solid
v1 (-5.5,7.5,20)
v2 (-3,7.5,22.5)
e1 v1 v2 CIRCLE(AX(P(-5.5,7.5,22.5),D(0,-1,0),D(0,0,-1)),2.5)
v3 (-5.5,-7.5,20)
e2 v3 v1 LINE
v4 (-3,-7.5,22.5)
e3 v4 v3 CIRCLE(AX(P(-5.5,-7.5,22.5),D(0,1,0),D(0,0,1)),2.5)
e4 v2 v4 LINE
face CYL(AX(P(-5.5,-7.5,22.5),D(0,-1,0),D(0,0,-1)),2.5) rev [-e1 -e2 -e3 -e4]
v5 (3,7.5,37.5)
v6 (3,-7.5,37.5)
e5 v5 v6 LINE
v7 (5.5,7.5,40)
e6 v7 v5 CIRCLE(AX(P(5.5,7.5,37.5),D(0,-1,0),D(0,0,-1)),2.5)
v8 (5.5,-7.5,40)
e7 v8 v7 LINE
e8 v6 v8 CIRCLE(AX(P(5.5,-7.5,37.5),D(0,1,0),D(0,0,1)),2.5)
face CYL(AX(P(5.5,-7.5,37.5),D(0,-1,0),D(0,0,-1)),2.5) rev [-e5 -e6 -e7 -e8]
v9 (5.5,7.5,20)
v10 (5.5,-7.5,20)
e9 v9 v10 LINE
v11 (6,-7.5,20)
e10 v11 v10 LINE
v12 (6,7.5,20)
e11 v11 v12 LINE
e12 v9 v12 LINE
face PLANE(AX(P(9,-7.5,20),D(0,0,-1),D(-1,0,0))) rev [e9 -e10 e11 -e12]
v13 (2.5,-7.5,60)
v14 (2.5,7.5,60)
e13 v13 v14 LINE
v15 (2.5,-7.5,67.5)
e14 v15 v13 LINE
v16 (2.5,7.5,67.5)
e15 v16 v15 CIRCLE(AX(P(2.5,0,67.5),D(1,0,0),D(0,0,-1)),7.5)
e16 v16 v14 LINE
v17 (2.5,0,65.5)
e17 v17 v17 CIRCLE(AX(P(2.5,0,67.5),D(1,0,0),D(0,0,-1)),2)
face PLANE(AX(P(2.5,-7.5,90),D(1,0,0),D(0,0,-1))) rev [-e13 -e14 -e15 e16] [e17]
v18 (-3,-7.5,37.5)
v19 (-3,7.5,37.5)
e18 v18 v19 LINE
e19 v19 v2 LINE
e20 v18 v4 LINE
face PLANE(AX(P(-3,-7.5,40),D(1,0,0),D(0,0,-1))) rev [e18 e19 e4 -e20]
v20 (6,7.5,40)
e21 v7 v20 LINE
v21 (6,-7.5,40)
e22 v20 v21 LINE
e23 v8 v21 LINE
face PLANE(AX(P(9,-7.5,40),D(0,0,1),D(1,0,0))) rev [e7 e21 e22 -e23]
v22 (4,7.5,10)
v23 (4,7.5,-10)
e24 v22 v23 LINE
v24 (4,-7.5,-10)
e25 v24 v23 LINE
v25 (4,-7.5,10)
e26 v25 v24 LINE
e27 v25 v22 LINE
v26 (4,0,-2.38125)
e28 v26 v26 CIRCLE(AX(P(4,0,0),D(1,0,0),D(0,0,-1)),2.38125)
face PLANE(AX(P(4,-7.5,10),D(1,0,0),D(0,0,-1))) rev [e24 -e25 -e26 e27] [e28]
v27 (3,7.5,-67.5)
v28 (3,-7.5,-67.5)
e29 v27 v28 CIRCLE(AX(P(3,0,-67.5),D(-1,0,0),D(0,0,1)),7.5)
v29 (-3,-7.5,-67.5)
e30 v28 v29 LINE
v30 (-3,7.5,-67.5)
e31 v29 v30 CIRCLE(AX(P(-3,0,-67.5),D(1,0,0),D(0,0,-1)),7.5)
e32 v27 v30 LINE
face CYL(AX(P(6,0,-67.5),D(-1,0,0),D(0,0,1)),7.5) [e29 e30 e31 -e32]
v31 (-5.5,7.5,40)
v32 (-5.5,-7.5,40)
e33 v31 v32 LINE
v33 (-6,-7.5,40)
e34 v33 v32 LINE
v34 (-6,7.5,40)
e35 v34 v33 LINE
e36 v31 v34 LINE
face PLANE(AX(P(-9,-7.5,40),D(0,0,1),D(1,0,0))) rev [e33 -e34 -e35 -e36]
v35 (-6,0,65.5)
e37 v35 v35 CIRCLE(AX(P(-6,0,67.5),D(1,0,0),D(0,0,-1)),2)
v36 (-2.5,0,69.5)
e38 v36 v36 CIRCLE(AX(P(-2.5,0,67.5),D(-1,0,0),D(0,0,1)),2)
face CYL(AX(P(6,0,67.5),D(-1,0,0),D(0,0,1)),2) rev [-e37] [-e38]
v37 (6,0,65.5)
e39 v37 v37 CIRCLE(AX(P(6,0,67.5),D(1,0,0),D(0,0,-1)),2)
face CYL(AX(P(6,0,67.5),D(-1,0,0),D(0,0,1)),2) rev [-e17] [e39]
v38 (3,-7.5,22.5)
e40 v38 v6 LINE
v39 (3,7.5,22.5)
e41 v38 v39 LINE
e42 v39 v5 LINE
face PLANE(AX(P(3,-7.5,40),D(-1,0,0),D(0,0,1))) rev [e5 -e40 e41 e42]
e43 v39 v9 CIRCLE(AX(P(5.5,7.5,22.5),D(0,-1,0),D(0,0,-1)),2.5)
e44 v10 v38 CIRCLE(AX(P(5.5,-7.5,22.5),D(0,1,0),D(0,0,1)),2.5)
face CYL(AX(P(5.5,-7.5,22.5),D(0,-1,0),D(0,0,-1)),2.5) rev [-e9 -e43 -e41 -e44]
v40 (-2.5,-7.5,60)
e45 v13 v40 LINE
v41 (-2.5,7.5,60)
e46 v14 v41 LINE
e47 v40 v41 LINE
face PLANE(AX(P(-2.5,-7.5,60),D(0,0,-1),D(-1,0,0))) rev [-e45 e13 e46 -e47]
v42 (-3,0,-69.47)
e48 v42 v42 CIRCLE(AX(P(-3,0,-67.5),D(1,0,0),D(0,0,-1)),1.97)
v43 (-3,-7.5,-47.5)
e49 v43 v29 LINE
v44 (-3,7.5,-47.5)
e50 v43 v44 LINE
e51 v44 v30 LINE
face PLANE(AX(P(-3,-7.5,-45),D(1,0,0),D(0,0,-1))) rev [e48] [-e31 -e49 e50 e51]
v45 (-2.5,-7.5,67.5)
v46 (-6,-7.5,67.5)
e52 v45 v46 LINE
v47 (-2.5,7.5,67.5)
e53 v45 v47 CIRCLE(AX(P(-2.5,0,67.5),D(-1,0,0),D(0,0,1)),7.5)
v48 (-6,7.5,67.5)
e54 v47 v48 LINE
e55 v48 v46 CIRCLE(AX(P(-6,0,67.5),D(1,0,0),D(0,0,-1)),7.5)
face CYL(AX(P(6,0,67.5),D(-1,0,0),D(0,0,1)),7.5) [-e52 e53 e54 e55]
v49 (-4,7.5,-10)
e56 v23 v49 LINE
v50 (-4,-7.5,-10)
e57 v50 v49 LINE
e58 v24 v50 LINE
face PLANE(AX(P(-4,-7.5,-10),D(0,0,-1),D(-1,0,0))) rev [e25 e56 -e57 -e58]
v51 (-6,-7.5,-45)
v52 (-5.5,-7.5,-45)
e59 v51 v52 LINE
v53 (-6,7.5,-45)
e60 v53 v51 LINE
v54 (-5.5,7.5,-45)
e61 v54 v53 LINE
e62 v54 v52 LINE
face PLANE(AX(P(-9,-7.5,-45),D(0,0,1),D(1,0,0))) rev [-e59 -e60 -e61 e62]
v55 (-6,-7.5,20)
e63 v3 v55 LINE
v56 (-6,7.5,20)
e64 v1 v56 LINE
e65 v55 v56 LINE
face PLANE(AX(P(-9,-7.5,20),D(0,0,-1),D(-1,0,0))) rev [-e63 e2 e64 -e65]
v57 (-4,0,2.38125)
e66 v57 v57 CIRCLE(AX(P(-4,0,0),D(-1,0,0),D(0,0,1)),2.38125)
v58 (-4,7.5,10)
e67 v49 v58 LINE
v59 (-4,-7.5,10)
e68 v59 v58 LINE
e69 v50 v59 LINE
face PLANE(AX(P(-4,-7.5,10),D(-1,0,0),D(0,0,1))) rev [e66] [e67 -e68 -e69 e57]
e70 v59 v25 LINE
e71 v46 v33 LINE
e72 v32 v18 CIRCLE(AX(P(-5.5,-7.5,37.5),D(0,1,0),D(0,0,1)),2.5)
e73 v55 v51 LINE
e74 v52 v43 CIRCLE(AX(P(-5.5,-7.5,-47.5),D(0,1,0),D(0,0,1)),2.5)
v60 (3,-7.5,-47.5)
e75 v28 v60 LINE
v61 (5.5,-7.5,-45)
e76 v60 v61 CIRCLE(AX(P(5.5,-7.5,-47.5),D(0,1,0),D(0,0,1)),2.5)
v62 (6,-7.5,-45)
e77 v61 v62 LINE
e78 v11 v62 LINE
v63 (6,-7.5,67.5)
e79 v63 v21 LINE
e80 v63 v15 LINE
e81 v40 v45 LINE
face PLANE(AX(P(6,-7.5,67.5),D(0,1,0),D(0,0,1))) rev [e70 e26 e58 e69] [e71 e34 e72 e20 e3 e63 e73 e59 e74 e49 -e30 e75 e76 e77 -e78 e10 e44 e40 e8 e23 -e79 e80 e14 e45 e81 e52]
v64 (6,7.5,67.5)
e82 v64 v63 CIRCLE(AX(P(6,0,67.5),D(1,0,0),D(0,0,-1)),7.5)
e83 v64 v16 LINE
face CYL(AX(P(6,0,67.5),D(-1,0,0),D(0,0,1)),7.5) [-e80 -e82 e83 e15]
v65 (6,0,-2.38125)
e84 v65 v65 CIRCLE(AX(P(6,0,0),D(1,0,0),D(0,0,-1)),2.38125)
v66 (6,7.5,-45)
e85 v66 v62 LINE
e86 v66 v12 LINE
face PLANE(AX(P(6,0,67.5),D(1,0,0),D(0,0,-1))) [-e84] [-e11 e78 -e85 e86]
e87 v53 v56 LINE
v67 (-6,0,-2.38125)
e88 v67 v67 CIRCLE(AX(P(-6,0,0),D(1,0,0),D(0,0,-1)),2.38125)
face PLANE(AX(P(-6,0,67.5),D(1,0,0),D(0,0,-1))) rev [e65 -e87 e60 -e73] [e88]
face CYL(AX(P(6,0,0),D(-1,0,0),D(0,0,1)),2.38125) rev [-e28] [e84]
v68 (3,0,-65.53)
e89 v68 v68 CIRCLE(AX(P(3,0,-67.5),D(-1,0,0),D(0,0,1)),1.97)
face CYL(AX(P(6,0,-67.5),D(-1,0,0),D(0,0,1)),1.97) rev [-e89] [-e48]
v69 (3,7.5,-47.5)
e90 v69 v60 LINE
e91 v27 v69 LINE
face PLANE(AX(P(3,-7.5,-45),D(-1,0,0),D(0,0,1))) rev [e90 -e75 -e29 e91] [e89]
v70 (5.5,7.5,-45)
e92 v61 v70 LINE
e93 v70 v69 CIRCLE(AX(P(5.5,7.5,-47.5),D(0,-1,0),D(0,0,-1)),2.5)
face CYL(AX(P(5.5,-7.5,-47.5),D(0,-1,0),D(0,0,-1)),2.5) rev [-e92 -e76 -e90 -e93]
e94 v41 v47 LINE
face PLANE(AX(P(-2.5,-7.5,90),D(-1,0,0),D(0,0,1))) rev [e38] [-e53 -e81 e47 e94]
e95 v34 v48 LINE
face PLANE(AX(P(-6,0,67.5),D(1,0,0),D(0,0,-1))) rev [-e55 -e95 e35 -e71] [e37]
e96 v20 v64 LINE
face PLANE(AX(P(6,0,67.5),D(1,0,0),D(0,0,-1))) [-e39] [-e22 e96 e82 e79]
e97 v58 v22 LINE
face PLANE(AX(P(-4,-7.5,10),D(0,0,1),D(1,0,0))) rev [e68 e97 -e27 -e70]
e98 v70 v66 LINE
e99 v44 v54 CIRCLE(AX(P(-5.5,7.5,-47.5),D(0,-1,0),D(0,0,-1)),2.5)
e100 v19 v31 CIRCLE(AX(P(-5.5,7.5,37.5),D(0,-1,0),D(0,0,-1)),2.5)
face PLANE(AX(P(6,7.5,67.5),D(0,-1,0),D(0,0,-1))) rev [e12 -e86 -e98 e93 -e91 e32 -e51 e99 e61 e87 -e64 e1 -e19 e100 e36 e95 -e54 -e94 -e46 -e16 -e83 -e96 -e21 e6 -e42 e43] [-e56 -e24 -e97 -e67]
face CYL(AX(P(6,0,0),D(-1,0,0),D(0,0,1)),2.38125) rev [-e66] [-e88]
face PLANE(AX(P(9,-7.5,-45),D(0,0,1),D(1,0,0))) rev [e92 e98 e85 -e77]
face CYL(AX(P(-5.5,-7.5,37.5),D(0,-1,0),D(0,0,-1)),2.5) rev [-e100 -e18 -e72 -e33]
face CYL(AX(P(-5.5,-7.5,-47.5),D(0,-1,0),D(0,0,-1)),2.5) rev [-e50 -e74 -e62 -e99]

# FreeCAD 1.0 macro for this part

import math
import FreeCAD as App
import Part
import Sketcher
from FreeCAD import Vector
Q = App.Units.Quantity


def edges_at(feature, points):
    """Names of the edges that pass closest to the given points."""
    edges = feature.Shape.Edges
    near = lambda p: min(range(len(edges)), key=lambda i: edges[i].distToShape(Part.Vertex(*p))[0])
    return sorted({f"Edge{near(p) + 1}" for p in points})

doc = App.newDocument("Part")
body = doc.addObject("PartDesign::Body", "Body")

sketch1 = body.newObject("Sketcher::SketchObject", "Sketch")
sketch1.AttachmentSupport = (doc.getObject("YZ_Plane"), [""])
sketch1.MapMode = "FlatFace"
sketch1.addGeometry([
    Part.LineSegment(Vector(7.5, -67.5, 0), Vector(7.5, 67.5, 0)),
    Part.ArcOfCircle(Part.Circle(Vector(0, 67.5, 0), Vector(0, 0, 1), 7.5), math.radians(0), math.radians(180)),
    Part.LineSegment(Vector(-7.5, 67.5, 0), Vector(-7.5, -67.5, 0)),
    Part.ArcOfCircle(Part.Circle(Vector(0, -67.5, 0), Vector(0, 0, 1), 7.5), math.radians(180), math.radians(360)),
    Part.Circle(Vector(0, -67.5, 0), Vector(0, 0, 1), 1.97),
    Part.Circle(Vector(0, 0, 0), Vector(0, 0, 1), 2.38125),
    Part.Circle(Vector(0, 67.5, 0), Vector(0, 0, 1), 2),
], False)
sketch1.addConstraint([
    Sketcher.Constraint("Tangent", 0, 2, 1, 1),
    Sketcher.Constraint("Tangent", 1, 2, 2, 1),
    Sketcher.Constraint("Tangent", 2, 2, 3, 1),
    Sketcher.Constraint("Tangent", 3, 2, 0, 1),
    Sketcher.Constraint("Vertical", 0),
    Sketcher.Constraint("Vertical", 2),
    Sketcher.Constraint("Coincident", 5, 3, -1, 1),
    Sketcher.Constraint("Coincident", 4, 3, 3, 3),
    Sketcher.Constraint("Coincident", 6, 3, 1, 3),
    Sketcher.Constraint("Symmetric", 1, 3, 3, 3, -1, 1),
    Sketcher.Constraint("Diameter", 6, Q("4 mm")),
    Sketcher.Constraint("Radius", 1, Q("7.5 mm")),
    Sketcher.Constraint("Diameter", 4, Q("3.94 mm")),
    Sketcher.Constraint("DistanceY", 0, 1, 0, 2, Q("135 mm")),
    Sketcher.Constraint("Diameter", 5, Q("4.7625 mm")),
])
pad1 = body.newObject("PartDesign::Pad", "Pad")
pad1.Profile = sketch1
pad1.Length = 12
pad1.Midplane = True

sketch2 = body.newObject("Sketcher::SketchObject", "Sketch001")
sketch2.AttachmentSupport = (doc.getObject("XZ_Plane"), [""])
sketch2.MapMode = "FlatFace"
sketch2.addGeometry([
    Part.LineSegment(Vector(-2.5, 60, 0), Vector(-2.5, 90, 0)),
    Part.LineSegment(Vector(-2.5, 90, 0), Vector(2.5, 90, 0)),
    Part.LineSegment(Vector(2.5, 90, 0), Vector(2.5, 60, 0)),
    Part.LineSegment(Vector(2.5, 60, 0), Vector(-2.5, 60, 0)),
    Part.LineSegment(Vector(-9, 20, 0), Vector(-9, 40, 0)),
    Part.LineSegment(Vector(-9, 40, 0), Vector(-3, 40, 0)),
    Part.LineSegment(Vector(-3, 40, 0), Vector(-3, 20, 0)),
    Part.LineSegment(Vector(-3, 20, 0), Vector(-9, 20, 0)),
    Part.LineSegment(Vector(3, 20, 0), Vector(3, 40, 0)),
    Part.LineSegment(Vector(3, 40, 0), Vector(9, 40, 0)),
    Part.LineSegment(Vector(9, 40, 0), Vector(9, 20, 0)),
    Part.LineSegment(Vector(9, 20, 0), Vector(3, 20, 0)),
    Part.LineSegment(Vector(3, -75, 0), Vector(3, -45, 0)),
    Part.LineSegment(Vector(3, -45, 0), Vector(9, -45, 0)),
    Part.LineSegment(Vector(9, -45, 0), Vector(9, -75, 0)),
    Part.LineSegment(Vector(9, -75, 0), Vector(3, -75, 0)),
    Part.LineSegment(Vector(-9, -75, 0), Vector(-9, -45, 0)),
    Part.LineSegment(Vector(-9, -45, 0), Vector(-3, -45, 0)),
    Part.LineSegment(Vector(-3, -45, 0), Vector(-3, -75, 0)),
    Part.LineSegment(Vector(-3, -75, 0), Vector(-9, -75, 0)),
    Part.LineSegment(Vector(-4, -10, 0), Vector(-4, 10, 0)),
    Part.LineSegment(Vector(-4, 10, 0), Vector(4, 10, 0)),
    Part.LineSegment(Vector(4, 10, 0), Vector(4, -10, 0)),
    Part.LineSegment(Vector(4, -10, 0), Vector(-4, -10, 0)),
], False)
sketch2.addConstraint([
    Sketcher.Constraint("Coincident", 0, 2, 1, 1),
    Sketcher.Constraint("Coincident", 1, 2, 2, 1),
    Sketcher.Constraint("Coincident", 2, 2, 3, 1),
    Sketcher.Constraint("Coincident", 3, 2, 0, 1),
    Sketcher.Constraint("Coincident", 4, 2, 5, 1),
    Sketcher.Constraint("Coincident", 5, 2, 6, 1),
    Sketcher.Constraint("Coincident", 6, 2, 7, 1),
    Sketcher.Constraint("Coincident", 7, 2, 4, 1),
    Sketcher.Constraint("Coincident", 8, 2, 9, 1),
    Sketcher.Constraint("Coincident", 9, 2, 10, 1),
    Sketcher.Constraint("Coincident", 10, 2, 11, 1),
    Sketcher.Constraint("Coincident", 11, 2, 8, 1),
    Sketcher.Constraint("Coincident", 12, 2, 13, 1),
    Sketcher.Constraint("Coincident", 13, 2, 14, 1),
    Sketcher.Constraint("Coincident", 14, 2, 15, 1),
    Sketcher.Constraint("Coincident", 15, 2, 12, 1),
    Sketcher.Constraint("Coincident", 16, 2, 17, 1),
    Sketcher.Constraint("Coincident", 17, 2, 18, 1),
    Sketcher.Constraint("Coincident", 18, 2, 19, 1),
    Sketcher.Constraint("Coincident", 19, 2, 16, 1),
    Sketcher.Constraint("Coincident", 20, 2, 21, 1),
    Sketcher.Constraint("Coincident", 21, 2, 22, 1),
    Sketcher.Constraint("Coincident", 22, 2, 23, 1),
    Sketcher.Constraint("Coincident", 23, 2, 20, 1),
    Sketcher.Constraint("Vertical", 0),
    Sketcher.Constraint("Horizontal", 1),
    Sketcher.Constraint("Vertical", 2),
    Sketcher.Constraint("Horizontal", 3),
    Sketcher.Constraint("Vertical", 4),
    Sketcher.Constraint("Horizontal", 5),
    Sketcher.Constraint("Vertical", 6),
    Sketcher.Constraint("Horizontal", 7),
    Sketcher.Constraint("Vertical", 8),
    Sketcher.Constraint("Horizontal", 9),
    Sketcher.Constraint("Vertical", 10),
    Sketcher.Constraint("Horizontal", 11),
    Sketcher.Constraint("Vertical", 12),
    Sketcher.Constraint("Horizontal", 13),
    Sketcher.Constraint("Vertical", 14),
    Sketcher.Constraint("Horizontal", 15),
    Sketcher.Constraint("Vertical", 16),
    Sketcher.Constraint("Horizontal", 17),
    Sketcher.Constraint("Vertical", 18),
    Sketcher.Constraint("Horizontal", 19),
    Sketcher.Constraint("Vertical", 20),
    Sketcher.Constraint("Horizontal", 21),
    Sketcher.Constraint("Vertical", 22),
    Sketcher.Constraint("Horizontal", 23),
    Sketcher.Constraint("Symmetric", 20, 2, 22, 2, -1, 1),
    Sketcher.Constraint("Symmetric", 5, 2, 8, 2, -2),
    Sketcher.Constraint("Symmetric", 7, 2, 10, 2, -2),
    Sketcher.Constraint("Symmetric", 13, 2, 16, 2, -2),
    Sketcher.Constraint("Symmetric", 15, 2, 18, 2, -2),
    Sketcher.Constraint("Vertical", 11, 2, 12, 2),
    Sketcher.Constraint("Vertical", 10, 2, 13, 2),
    Sketcher.Constraint("Equal", 2, 12),
    Sketcher.Constraint("Equal", 10, 20),
    Sketcher.Constraint("DistanceX", 1, 1, 1, 2, Q("5 mm")),
    Sketcher.Constraint("DistanceX", 5, 1, 5, 2, Q("6 mm")),
    Sketcher.Constraint("DistanceX", 21, 1, 21, 2, Q("8 mm")),
    Sketcher.Constraint("DistanceY", 0, 1, 0, 2, Q("30 mm")),
    Sketcher.Constraint("DistanceY", 4, 1, 4, 2, Q("20 mm")),
    Sketcher.Constraint("DistanceY", -1, 1, 0, 2, Q("90 mm")),
    Sketcher.Constraint("DistanceX", 4, 2, -1, 1, Q("9 mm")),
    Sketcher.Constraint("DistanceY", -1, 1, 4, 2, Q("40 mm")),
    Sketcher.Constraint("DistanceY", 12, 2, -1, 1, Q("45 mm")),
    Sketcher.Constraint("DistanceX", 0, 2, -1, 1, Q("2.5 mm")),
])
pocket1 = body.newObject("PartDesign::Pocket", "Pocket")
pocket1.Profile = sketch2
pocket1.Type = "ThroughAll"
pocket1.Midplane = True
doc.recompute()

fillet = body.newObject("PartDesign::Fillet", "Fillet")
fillet.Base = (pocket1, edges_at(pocket1, [
    (3, 0, 20),
    (3, 0, 40),
    (-3, 0, 40),
    (-3, 0, 20),
    (3, 0, -45),
    (-3, 0, -45),
]))
fillet.Radius = 2.5

doc.recompute()
